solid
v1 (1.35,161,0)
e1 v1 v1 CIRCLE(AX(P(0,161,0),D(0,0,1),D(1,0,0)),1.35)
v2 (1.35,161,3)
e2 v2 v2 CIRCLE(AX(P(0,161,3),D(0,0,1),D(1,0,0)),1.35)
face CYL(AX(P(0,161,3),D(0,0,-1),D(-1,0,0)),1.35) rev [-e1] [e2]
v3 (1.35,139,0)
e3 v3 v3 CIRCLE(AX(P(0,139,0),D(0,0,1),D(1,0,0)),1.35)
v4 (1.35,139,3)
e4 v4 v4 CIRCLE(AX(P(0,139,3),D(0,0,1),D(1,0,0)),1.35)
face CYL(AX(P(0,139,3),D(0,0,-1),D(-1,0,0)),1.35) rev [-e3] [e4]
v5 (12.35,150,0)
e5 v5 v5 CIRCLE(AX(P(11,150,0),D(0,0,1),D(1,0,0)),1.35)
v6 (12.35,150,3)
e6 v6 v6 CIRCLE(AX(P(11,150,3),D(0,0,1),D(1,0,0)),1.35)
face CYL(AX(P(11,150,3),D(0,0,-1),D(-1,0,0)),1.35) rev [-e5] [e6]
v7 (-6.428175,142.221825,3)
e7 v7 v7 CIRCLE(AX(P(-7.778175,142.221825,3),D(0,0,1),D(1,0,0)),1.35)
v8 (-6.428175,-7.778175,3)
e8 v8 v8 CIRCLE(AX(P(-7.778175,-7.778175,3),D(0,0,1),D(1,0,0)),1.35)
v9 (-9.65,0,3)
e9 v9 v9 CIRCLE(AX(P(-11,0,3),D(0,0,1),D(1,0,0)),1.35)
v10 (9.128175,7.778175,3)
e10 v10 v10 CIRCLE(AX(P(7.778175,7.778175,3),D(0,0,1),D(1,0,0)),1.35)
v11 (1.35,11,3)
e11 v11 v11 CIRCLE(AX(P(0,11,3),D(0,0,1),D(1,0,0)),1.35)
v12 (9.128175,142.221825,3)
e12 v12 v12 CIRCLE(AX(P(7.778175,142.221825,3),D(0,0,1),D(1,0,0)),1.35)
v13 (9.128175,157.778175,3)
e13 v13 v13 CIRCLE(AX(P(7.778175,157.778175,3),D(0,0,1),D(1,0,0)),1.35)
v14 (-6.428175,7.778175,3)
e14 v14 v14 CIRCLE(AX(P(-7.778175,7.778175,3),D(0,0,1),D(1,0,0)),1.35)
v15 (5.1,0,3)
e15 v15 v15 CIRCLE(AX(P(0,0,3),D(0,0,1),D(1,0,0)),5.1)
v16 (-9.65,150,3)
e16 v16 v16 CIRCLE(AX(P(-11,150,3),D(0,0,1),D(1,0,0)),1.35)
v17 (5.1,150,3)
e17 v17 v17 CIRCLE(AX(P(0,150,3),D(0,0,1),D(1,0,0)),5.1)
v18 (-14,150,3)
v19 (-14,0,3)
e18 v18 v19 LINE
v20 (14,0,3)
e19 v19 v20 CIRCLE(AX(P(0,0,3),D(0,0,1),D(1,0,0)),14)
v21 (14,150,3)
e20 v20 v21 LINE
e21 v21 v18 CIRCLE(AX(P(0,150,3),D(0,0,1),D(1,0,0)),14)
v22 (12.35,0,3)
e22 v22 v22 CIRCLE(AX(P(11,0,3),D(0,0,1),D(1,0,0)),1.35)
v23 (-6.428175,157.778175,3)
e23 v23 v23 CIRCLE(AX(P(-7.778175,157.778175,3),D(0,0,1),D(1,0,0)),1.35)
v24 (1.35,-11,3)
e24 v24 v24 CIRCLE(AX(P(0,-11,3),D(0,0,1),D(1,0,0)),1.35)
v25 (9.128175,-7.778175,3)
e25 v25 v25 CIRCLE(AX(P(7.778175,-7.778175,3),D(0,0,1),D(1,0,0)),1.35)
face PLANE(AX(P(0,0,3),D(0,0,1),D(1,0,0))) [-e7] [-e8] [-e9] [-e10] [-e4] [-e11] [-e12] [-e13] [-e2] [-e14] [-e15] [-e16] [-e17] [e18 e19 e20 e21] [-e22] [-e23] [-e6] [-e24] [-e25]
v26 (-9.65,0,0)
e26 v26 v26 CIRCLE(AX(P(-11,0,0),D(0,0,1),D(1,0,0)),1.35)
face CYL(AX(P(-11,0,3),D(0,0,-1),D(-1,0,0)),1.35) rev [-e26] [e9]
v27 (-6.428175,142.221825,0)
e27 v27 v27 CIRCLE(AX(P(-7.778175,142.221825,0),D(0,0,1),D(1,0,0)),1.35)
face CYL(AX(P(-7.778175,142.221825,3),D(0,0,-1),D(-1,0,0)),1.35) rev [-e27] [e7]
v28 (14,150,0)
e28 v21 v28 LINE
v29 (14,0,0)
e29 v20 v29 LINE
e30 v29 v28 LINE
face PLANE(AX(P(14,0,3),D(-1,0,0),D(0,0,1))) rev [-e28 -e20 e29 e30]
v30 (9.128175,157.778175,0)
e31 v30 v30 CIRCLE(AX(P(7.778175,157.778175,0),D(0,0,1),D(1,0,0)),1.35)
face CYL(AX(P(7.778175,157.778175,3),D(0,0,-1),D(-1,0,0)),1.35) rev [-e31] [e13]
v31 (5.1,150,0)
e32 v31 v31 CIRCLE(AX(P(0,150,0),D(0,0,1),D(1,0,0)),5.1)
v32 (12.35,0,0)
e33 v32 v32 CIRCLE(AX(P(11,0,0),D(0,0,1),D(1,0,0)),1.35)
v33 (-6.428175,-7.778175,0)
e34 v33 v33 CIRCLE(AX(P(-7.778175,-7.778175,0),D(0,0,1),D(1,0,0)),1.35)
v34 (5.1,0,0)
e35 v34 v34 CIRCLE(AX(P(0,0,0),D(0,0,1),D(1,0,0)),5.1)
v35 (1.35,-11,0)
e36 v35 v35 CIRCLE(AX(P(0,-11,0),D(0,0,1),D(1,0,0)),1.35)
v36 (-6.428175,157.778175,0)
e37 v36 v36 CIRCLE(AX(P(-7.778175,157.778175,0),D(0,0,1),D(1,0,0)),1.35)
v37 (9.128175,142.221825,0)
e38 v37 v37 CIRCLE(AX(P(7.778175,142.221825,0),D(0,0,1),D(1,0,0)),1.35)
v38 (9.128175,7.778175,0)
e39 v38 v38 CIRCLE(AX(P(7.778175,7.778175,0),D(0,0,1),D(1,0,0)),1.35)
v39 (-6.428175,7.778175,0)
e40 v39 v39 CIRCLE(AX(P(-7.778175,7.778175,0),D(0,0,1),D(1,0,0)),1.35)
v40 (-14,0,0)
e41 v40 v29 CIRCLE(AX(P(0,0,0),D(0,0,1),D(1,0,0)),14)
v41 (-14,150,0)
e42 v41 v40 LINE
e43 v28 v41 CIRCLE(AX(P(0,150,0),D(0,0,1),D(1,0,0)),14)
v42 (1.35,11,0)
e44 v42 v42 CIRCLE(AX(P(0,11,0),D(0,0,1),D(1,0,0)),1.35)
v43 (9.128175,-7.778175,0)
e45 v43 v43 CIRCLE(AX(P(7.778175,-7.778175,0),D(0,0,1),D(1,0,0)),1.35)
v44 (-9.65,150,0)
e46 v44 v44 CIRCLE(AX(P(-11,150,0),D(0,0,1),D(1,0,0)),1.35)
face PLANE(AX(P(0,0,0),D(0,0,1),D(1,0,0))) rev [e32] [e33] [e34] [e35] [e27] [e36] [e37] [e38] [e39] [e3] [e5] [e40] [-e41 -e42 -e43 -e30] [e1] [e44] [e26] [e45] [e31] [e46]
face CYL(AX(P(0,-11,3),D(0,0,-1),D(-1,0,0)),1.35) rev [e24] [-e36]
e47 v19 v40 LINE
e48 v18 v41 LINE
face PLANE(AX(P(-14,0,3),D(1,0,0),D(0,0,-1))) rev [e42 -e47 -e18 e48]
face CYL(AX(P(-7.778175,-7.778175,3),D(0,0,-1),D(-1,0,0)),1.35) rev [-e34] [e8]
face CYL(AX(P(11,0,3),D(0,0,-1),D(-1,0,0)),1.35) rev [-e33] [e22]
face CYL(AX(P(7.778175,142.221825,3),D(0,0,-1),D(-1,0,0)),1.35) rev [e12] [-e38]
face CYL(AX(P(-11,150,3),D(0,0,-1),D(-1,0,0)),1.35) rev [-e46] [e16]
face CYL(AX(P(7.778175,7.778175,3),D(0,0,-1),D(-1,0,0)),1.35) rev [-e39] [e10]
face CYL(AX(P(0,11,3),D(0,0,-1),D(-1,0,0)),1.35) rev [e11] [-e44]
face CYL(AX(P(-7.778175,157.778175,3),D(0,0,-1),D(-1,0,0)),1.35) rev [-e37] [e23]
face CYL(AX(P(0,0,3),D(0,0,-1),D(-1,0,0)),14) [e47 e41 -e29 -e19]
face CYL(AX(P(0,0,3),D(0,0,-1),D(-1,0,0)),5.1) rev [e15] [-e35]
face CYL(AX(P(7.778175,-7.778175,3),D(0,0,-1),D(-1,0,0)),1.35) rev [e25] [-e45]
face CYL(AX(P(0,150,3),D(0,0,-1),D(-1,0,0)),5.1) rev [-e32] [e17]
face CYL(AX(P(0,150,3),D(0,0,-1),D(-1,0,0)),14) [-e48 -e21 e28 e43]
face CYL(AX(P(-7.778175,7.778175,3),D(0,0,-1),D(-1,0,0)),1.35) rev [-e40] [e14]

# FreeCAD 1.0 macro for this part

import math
import FreeCAD as App
import Part
import Sketcher

V = App.Vector

doc = App.newDocument("Part")
body = doc.addObject("PartDesign::Body", "Body")

sketch1 = body.newObject("Sketcher::SketchObject", "Sketch")
sketch1.AttachmentSupport = (doc.getObject("XY_Plane"), [""])
sketch1.MapMode = "FlatFace"
sketch1.addGeometry([
    Part.LineSegment(V(-14, 150, 0), V(-14, 0, 0)),
    Part.ArcOfCircle(Part.Circle(V(0, 0, 0), V(0, 0, 1), 14), math.radians(180), math.radians(360)),
    Part.LineSegment(V(14, 0, 0), V(14, 150, 0)),
    Part.ArcOfCircle(Part.Circle(V(0, 150, 0), V(0, 0, 1), 14), math.radians(0), math.radians(180)),
    Part.Circle(V(11, 0, 0), V(0, 0, 1), 1.35),
    Part.Circle(V(7.778175, -7.778175, 0), V(0, 0, 1), 1.35),
    Part.Circle(V(7.778175, 7.778175, 0), V(0, 0, 1), 1.35),
    Part.Circle(V(0, -11, 0), V(0, 0, 1), 1.35),
    Part.Circle(V(0, 0, 0), V(0, 0, 1), 5.1),
    Part.Circle(V(0, 11, 0), V(0, 0, 1), 1.35),
    Part.Circle(V(-7.778175, -7.778175, 0), V(0, 0, 1), 1.35),
    Part.Circle(V(-7.778175, 7.778175, 0), V(0, 0, 1), 1.35),
    Part.Circle(V(-11, 0, 0), V(0, 0, 1), 1.35),
    Part.Circle(V(11, 150, 0), V(0, 0, 1), 1.35),
    Part.Circle(V(7.778175, 142.221825, 0), V(0, 0, 1), 1.35),
    Part.Circle(V(7.778175, 157.778175, 0), V(0, 0, 1), 1.35),
    Part.Circle(V(0, 139, 0), V(0, 0, 1), 1.35),
    Part.Circle(V(0, 150, 0), V(0, 0, 1), 5.1),
    Part.Circle(V(0, 161, 0), V(0, 0, 1), 1.35),
    Part.Circle(V(-7.778175, 142.221825, 0), V(0, 0, 1), 1.35),
    Part.Circle(V(-7.778175, 157.778175, 0), V(0, 0, 1), 1.35),
    Part.Circle(V(-11, 150, 0), V(0, 0, 1), 1.35),
], False)
sketch1.addConstraint([
    Sketcher.Constraint("Tangent", 0, 2, 1, 1),
    Sketcher.Constraint("Tangent", 1, 2, 2, 1),
    Sketcher.Constraint("Tangent", 2, 2, 3, 1),
    Sketcher.Constraint("Tangent", 3, 2, 0, 1),
    Sketcher.Constraint("Vertical", 0),
    Sketcher.Constraint("Vertical", 2),
    Sketcher.Constraint("Coincident", 1, 3, -1, 1),
    Sketcher.Constraint("Coincident", 8, 3, -1, 1),
    Sketcher.Constraint("Coincident", 17, 3, 3, 3),
    Sketcher.Constraint("Equal", 4, 5),
    Sketcher.Constraint("Equal", 5, 6),
    Sketcher.Constraint("Equal", 6, 7),
    Sketcher.Constraint("Equal", 7, 9),
    Sketcher.Constraint("Equal", 9, 10),
    Sketcher.Constraint("Equal", 10, 11),
    Sketcher.Constraint("Equal", 11, 12),
    Sketcher.Constraint("Equal", 12, 13),
    Sketcher.Constraint("Equal", 13, 14),
    Sketcher.Constraint("Equal", 14, 15),
    Sketcher.Constraint("Equal", 15, 16),
    Sketcher.Constraint("Equal", 8, 17),
    Sketcher.Constraint("Equal", 16, 18),
    Sketcher.Constraint("Equal", 18, 19),
    Sketcher.Constraint("Equal", 19, 20),
    Sketcher.Constraint("Equal", 20, 21),
    Sketcher.Constraint("Symmetric", 7, 3, 9, 3, -1, 1),
    Sketcher.Constraint("Symmetric", 6, 3, 10, 3, -1, 1),
    Sketcher.Constraint("Symmetric", 5, 3, 11, 3, -1, 1),
    Sketcher.Constraint("Symmetric", 4, 3, 12, 3, -1, 1),
    Sketcher.Constraint("Symmetric", 5, 3, 10, 3, -2),
    Sketcher.Constraint("Symmetric", 14, 3, 19, 3, -2),
    Sketcher.Constraint("Symmetric", 15, 3, 20, 3, -2),
    Sketcher.Constraint("Symmetric", 13, 3, 21, 3, -2),
    Sketcher.Constraint("PointOnObject", 4, 3, -1),
    Sketcher.Constraint("PointOnObject", 7, 3, -2),
    Sketcher.Constraint("PointOnObject", 16, 3, -2),
    Sketcher.Constraint("PointOnObject", 18, 3, -2),
    Sketcher.Constraint("Horizontal", 3, 3, 13, 3),
    Sketcher.Constraint("Vertical", 4, 3, 13, 3),
    Sketcher.Constraint("Vertical", 6, 3, 14, 3),
    Sketcher.Constraint("Vertical", 14, 3, 15, 3),
    Sketcher.Constraint("Radius", 1, 14.0),
    Sketcher.Constraint("Diameter", 4, 2.7),
    Sketcher.Constraint("Diameter", 8, 10.2),
    Sketcher.Constraint("DistanceY", 0, 2, 0, 1, 150.0),
    Sketcher.Constraint("DistanceX", -1, 1, 4, 3, 11.0),
    Sketcher.Constraint("DistanceY", 7, 3, -1, 1, 11.0),
    Sketcher.Constraint("DistanceY", -1, 1, 16, 3, 139.0),
    Sketcher.Constraint("DistanceY", -1, 1, 18, 3, 161.0),
    Sketcher.Constraint("DistanceY", 6, 3, 15, 3, 150.0),
    Sketcher.Constraint("DistanceY", 5, 3, 6, 3, 15.556349),
    Sketcher.Constraint("DistanceX", 10, 3, 5, 3, 15.556349),
    Sketcher.Constraint("DistanceY", 6, 3, 14, 3, 134.443651),
])
pad1 = body.newObject("PartDesign::Pad", "Pad")
pad1.Profile = sketch1
pad1.Length = 3

doc.recompute()
